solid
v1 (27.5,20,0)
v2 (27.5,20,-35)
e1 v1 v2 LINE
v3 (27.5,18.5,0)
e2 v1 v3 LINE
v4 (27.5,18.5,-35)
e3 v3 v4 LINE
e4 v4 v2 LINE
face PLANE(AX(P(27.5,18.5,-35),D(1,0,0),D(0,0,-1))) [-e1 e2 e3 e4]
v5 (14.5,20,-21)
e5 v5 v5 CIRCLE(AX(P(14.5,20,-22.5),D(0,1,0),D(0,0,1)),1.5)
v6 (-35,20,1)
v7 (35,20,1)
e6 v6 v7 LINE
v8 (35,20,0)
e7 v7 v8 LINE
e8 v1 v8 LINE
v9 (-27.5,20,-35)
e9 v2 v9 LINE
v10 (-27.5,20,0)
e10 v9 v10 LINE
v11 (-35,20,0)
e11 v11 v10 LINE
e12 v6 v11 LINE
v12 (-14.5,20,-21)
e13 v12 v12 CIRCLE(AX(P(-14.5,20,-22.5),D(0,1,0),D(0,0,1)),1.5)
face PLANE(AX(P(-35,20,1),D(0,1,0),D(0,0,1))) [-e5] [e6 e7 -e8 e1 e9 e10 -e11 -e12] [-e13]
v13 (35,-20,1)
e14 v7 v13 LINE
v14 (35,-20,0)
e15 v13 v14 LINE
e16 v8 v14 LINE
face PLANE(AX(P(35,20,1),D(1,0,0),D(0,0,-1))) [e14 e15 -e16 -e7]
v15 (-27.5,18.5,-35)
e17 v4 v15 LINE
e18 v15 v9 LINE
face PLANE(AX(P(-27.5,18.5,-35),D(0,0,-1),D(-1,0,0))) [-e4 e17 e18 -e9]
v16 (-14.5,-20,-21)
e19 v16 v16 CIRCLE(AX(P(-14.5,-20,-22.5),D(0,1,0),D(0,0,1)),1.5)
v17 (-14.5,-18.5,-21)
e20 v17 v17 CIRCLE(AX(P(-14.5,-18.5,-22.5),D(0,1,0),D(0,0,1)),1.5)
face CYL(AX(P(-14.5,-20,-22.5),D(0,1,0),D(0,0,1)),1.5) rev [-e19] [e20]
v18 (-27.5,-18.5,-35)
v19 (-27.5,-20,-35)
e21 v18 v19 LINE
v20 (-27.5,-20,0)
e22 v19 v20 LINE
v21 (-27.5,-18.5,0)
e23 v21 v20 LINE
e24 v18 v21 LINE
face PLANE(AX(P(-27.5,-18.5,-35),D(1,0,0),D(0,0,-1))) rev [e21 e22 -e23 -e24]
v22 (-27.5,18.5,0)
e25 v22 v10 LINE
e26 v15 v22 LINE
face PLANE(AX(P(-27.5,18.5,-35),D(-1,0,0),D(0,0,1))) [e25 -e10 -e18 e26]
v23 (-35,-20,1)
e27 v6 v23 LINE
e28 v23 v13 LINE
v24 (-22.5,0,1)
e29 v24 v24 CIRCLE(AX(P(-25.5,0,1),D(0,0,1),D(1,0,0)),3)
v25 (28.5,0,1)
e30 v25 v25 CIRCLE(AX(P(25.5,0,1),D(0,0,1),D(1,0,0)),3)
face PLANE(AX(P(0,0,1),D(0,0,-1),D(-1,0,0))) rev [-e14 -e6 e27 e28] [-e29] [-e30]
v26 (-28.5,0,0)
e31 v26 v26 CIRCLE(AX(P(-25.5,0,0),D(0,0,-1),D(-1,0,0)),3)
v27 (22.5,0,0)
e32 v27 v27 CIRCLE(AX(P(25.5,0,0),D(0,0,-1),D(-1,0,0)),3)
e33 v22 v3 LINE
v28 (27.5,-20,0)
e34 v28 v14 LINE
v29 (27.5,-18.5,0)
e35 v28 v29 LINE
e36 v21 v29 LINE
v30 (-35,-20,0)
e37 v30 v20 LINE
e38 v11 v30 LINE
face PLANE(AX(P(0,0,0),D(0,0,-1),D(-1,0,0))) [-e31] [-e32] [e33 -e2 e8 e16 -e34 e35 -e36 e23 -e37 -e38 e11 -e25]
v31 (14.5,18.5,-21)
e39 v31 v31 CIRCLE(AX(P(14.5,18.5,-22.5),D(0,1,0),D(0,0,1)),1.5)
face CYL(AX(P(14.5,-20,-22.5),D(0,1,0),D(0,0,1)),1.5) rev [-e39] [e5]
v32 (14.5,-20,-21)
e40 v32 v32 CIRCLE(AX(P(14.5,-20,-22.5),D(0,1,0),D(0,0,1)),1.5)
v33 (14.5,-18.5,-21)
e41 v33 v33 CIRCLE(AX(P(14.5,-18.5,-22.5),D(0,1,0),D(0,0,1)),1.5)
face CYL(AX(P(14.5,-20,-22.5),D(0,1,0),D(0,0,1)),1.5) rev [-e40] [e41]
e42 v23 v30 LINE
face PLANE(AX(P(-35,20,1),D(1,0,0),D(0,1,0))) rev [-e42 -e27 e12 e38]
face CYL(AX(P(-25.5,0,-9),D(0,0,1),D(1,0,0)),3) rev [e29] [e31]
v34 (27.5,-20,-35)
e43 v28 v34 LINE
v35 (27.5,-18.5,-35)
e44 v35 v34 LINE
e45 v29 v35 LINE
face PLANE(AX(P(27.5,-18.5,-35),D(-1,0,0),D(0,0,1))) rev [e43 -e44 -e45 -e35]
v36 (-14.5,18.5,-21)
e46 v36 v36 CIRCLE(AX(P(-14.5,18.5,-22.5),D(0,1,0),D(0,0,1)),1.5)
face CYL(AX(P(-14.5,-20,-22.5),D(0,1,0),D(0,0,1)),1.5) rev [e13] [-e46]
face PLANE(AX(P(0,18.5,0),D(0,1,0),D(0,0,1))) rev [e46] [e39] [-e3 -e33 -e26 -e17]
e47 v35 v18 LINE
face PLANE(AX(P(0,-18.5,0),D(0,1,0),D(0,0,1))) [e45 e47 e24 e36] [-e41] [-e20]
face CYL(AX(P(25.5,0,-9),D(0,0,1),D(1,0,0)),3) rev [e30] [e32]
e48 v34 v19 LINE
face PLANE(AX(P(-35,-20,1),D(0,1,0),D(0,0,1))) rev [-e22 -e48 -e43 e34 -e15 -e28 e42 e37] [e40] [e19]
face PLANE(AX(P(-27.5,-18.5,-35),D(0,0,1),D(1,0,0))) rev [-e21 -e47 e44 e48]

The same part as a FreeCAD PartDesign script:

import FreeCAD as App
import Part
import Sketcher

V = App.Vector

doc = App.newDocument("Part")
params = doc.addObject("Spreadsheet::Sheet", "Params")
for row, (alias, value) in enumerate([
    ("sketch1_width", "70 mm"),
    ("sketch1_height", "40 mm"),
    ("pad1_length", "1 mm"),
    ("sketch2_diameter", "6 mm"),
    ("pocket1_length", "10 mm"),
    ("sketch3_width", "55 mm"),
    ("sketch3_height", "36 mm"),
    ("pad2_length", "1.5 mm"),
    ("sketch4_width", "55 mm"),
    ("sketch4_height", "36 mm"),
    ("pad3_length", "1.5 mm"),
    ("sketch5_diameter", "3 mm"),
], start=1):
    params.set(f"A{row}", alias)
    params.set(f"B{row}", "=" + value)
    params.setAlias(f"B{row}", alias)

body = doc.addObject("PartDesign::Body", "Body")

# Sketch on XY plane
sketch1 = body.newObject("Sketcher::SketchObject", "Sketch")
sketch1.AttachmentSupport = (doc.getObject("XY_Plane"), [""])
sketch1.MapMode = "FlatFace"
sketch1.addGeometry([
    Part.LineSegment(V(-35, 20, 0), V(-35, -20, 0)),
    Part.LineSegment(V(-35, -20, 0), V(35, -20, 0)),
    Part.LineSegment(V(35, -20, 0), V(35, 20, 0)),
    Part.LineSegment(V(35, 20, 0), V(-35, 20, 0)),
], False)
sketch1.addConstraint([
    Sketcher.Constraint("Coincident", 0, 2, 1, 1),
    Sketcher.Constraint("Coincident", 1, 2, 2, 1),
    Sketcher.Constraint("Coincident", 2, 2, 3, 1),
    Sketcher.Constraint("Coincident", 3, 2, 0, 1),
    Sketcher.Constraint("Vertical", 0),
    Sketcher.Constraint("Horizontal", 1),
    Sketcher.Constraint("Vertical", 2),
    Sketcher.Constraint("Horizontal", 3),
    Sketcher.Constraint("Symmetric", 0, 2, 2, 2, -1, 1),
    Sketcher.Constraint("DistanceX", 1, 1, 1, 2, 70.0),
    Sketcher.Constraint("DistanceY", 0, 2, 0, 1, 40.0),
])
sketch1.setExpression("Constraints[9]", "Params.sketch1_width")
sketch1.setExpression("Constraints[10]", "Params.sketch1_height")
pad1 = body.newObject("PartDesign::Pad", "Pad")
pad1.Profile = sketch1
pad1.setExpression("Length", "Params.pad1_length")

# Sketch on XY plane
sketch2 = body.newObject("Sketcher::SketchObject", "Sketch001")
sketch2.AttachmentSupport = (doc.getObject("XY_Plane"), [""])
sketch2.MapMode = "FlatFace"
sketch2.AttachmentOffset = App.Placement(V(0, 0, 1), App.Rotation())
sketch2.addGeometry([
    Part.Circle(V(-25.5, 0, 0), V(0, 0, 1), 3),
    Part.Circle(V(25.5, 0, 0), V(0, 0, 1), 3),
], False)
sketch2.addConstraint([
    Sketcher.Constraint("Equal", 0, 1),
    Sketcher.Constraint("Symmetric", 0, 3, 1, 3, -1, 1),
    Sketcher.Constraint("PointOnObject", 0, 3, -1),
    Sketcher.Constraint("Diameter", 0, 6.0),
    Sketcher.Constraint("DistanceX", 0, 3, 1, 3, 51.0),
])
sketch2.setExpression("Constraints[3]", "Params.sketch2_diameter")
pocket1 = body.newObject("PartDesign::Pocket", "Pocket")
pocket1.Profile = sketch2
pocket1.setExpression("Length", "Params.pocket1_length")

# Sketch on XZ plane
sketch3 = body.newObject("Sketcher::SketchObject", "Sketch002")
sketch3.AttachmentSupport = (doc.getObject("XZ_Plane"), [""])
sketch3.MapMode = "FlatFace"
sketch3.AttachmentOffset = App.Placement(V(0, 0, -20), App.Rotation())
sketch3.addGeometry([
    Part.LineSegment(V(-28, -35, 0), V(-28, 1, 0)),
    Part.LineSegment(V(-28, 1, 0), V(28, 1, 0)),
    Part.LineSegment(V(28, 1, 0), V(28, -35, 0)),
    Part.LineSegment(V(28, -35, 0), V(-28, -35, 0)),
], False)
sketch3.addConstraint([
    Sketcher.Constraint("Coincident", 0, 2, 1, 1),
    Sketcher.Constraint("Coincident", 1, 2, 2, 1),
    Sketcher.Constraint("Coincident", 2, 2, 3, 1),
    Sketcher.Constraint("Coincident", 3, 2, 0, 1),
    Sketcher.Constraint("Vertical", 0),
    Sketcher.Constraint("Horizontal", 1),
    Sketcher.Constraint("Vertical", 2),
    Sketcher.Constraint("Horizontal", 3),
    Sketcher.Constraint("DistanceX", 1, 1, 1, 2, 55.0),
    Sketcher.Constraint("DistanceY", 0, 1, 0, 2, 36.0),
    Sketcher.Constraint("DistanceY", -1, 1, 0, 2, 1.0),
    Sketcher.Constraint("DistanceX", 0, 2, -1, 1, 27.5),
])
sketch3.setExpression("Constraints[8]", "Params.sketch3_width")
sketch3.setExpression("Constraints[9]", "Params.sketch3_height")
pad2 = body.newObject("PartDesign::Pad", "Pad001")
pad2.Profile = sketch3
pad2.setExpression("Length", "Params.pad2_length")

# Sketch on XZ plane
sketch4 = body.newObject("Sketcher::SketchObject", "Sketch003")
sketch4.AttachmentSupport = (doc.getObject("XZ_Plane"), [""])
sketch4.MapMode = "FlatFace"
sketch4.AttachmentOffset = App.Placement(V(0, 0, 20), App.Rotation())
sketch4.addGeometry([
    Part.LineSegment(V(-28, -35, 0), V(-28, 1, 0)),
    Part.LineSegment(V(-28, 1, 0), V(28, 1, 0)),
    Part.LineSegment(V(28, 1, 0), V(28, -35, 0)),
    Part.LineSegment(V(28, -35, 0), V(-28, -35, 0)),
], False)
sketch4.addConstraint([
    Sketcher.Constraint("Coincident", 0, 2, 1, 1),
    Sketcher.Constraint("Coincident", 1, 2, 2, 1),
    Sketcher.Constraint("Coincident", 2, 2, 3, 1),
    Sketcher.Constraint("Coincident", 3, 2, 0, 1),
    Sketcher.Constraint("Vertical", 0),
    Sketcher.Constraint("Horizontal", 1),
    Sketcher.Constraint("Vertical", 2),
    Sketcher.Constraint("Horizontal", 3),
    Sketcher.Constraint("DistanceX", 1, 1, 1, 2, 55.0),
    Sketcher.Constraint("DistanceY", 0, 1, 0, 2, 36.0),
    Sketcher.Constraint("DistanceY", -1, 1, 0, 2, 1.0),
    Sketcher.Constraint("DistanceX", 0, 2, -1, 1, 27.5),
])
sketch4.setExpression("Constraints[8]", "Params.sketch4_width")
sketch4.setExpression("Constraints[9]", "Params.sketch4_height")
pad3 = body.newObject("PartDesign::Pad", "Pad002")
pad3.Profile = sketch4
pad3.setExpression("Length", "Params.pad3_length")
pad3.Reversed = True

# Sketch on XZ plane
sketch5 = body.newObject("Sketcher::SketchObject", "Sketch004")
sketch5.AttachmentSupport = (doc.getObject("XZ_Plane"), [""])
sketch5.MapMode = "FlatFace"
sketch5.AttachmentOffset = App.Placement(V(0, 0, -20), App.Rotation())
sketch5.addGeometry([
    Part.Circle(V(-14.5, -22.5, 0), V(0, 0, 1), 1.5),
    Part.Circle(V(14.5, -22.5, 0), V(0, 0, 1), 1.5),
], False)
sketch5.addConstraint([
    Sketcher.Constraint("Equal", 0, 1),
    Sketcher.Constraint("Symmetric", 0, 3, 1, 3, -2),
    Sketcher.Constraint("Diameter", 0, 3.0),
    Sketcher.Constraint("DistanceX", 0, 3, 1, 3, 29.0),
    Sketcher.Constraint("DistanceY", 0, 3, -1, 1, 22.5),
])
sketch5.setExpression("Constraints[2]", "Params.sketch5_diameter")
pocket2 = body.newObject("PartDesign::Pocket", "Pocket001")
pocket2.Profile = sketch5
pocket2.Type = "ThroughAll"
pocket2.Reversed = True

doc.recompute()
